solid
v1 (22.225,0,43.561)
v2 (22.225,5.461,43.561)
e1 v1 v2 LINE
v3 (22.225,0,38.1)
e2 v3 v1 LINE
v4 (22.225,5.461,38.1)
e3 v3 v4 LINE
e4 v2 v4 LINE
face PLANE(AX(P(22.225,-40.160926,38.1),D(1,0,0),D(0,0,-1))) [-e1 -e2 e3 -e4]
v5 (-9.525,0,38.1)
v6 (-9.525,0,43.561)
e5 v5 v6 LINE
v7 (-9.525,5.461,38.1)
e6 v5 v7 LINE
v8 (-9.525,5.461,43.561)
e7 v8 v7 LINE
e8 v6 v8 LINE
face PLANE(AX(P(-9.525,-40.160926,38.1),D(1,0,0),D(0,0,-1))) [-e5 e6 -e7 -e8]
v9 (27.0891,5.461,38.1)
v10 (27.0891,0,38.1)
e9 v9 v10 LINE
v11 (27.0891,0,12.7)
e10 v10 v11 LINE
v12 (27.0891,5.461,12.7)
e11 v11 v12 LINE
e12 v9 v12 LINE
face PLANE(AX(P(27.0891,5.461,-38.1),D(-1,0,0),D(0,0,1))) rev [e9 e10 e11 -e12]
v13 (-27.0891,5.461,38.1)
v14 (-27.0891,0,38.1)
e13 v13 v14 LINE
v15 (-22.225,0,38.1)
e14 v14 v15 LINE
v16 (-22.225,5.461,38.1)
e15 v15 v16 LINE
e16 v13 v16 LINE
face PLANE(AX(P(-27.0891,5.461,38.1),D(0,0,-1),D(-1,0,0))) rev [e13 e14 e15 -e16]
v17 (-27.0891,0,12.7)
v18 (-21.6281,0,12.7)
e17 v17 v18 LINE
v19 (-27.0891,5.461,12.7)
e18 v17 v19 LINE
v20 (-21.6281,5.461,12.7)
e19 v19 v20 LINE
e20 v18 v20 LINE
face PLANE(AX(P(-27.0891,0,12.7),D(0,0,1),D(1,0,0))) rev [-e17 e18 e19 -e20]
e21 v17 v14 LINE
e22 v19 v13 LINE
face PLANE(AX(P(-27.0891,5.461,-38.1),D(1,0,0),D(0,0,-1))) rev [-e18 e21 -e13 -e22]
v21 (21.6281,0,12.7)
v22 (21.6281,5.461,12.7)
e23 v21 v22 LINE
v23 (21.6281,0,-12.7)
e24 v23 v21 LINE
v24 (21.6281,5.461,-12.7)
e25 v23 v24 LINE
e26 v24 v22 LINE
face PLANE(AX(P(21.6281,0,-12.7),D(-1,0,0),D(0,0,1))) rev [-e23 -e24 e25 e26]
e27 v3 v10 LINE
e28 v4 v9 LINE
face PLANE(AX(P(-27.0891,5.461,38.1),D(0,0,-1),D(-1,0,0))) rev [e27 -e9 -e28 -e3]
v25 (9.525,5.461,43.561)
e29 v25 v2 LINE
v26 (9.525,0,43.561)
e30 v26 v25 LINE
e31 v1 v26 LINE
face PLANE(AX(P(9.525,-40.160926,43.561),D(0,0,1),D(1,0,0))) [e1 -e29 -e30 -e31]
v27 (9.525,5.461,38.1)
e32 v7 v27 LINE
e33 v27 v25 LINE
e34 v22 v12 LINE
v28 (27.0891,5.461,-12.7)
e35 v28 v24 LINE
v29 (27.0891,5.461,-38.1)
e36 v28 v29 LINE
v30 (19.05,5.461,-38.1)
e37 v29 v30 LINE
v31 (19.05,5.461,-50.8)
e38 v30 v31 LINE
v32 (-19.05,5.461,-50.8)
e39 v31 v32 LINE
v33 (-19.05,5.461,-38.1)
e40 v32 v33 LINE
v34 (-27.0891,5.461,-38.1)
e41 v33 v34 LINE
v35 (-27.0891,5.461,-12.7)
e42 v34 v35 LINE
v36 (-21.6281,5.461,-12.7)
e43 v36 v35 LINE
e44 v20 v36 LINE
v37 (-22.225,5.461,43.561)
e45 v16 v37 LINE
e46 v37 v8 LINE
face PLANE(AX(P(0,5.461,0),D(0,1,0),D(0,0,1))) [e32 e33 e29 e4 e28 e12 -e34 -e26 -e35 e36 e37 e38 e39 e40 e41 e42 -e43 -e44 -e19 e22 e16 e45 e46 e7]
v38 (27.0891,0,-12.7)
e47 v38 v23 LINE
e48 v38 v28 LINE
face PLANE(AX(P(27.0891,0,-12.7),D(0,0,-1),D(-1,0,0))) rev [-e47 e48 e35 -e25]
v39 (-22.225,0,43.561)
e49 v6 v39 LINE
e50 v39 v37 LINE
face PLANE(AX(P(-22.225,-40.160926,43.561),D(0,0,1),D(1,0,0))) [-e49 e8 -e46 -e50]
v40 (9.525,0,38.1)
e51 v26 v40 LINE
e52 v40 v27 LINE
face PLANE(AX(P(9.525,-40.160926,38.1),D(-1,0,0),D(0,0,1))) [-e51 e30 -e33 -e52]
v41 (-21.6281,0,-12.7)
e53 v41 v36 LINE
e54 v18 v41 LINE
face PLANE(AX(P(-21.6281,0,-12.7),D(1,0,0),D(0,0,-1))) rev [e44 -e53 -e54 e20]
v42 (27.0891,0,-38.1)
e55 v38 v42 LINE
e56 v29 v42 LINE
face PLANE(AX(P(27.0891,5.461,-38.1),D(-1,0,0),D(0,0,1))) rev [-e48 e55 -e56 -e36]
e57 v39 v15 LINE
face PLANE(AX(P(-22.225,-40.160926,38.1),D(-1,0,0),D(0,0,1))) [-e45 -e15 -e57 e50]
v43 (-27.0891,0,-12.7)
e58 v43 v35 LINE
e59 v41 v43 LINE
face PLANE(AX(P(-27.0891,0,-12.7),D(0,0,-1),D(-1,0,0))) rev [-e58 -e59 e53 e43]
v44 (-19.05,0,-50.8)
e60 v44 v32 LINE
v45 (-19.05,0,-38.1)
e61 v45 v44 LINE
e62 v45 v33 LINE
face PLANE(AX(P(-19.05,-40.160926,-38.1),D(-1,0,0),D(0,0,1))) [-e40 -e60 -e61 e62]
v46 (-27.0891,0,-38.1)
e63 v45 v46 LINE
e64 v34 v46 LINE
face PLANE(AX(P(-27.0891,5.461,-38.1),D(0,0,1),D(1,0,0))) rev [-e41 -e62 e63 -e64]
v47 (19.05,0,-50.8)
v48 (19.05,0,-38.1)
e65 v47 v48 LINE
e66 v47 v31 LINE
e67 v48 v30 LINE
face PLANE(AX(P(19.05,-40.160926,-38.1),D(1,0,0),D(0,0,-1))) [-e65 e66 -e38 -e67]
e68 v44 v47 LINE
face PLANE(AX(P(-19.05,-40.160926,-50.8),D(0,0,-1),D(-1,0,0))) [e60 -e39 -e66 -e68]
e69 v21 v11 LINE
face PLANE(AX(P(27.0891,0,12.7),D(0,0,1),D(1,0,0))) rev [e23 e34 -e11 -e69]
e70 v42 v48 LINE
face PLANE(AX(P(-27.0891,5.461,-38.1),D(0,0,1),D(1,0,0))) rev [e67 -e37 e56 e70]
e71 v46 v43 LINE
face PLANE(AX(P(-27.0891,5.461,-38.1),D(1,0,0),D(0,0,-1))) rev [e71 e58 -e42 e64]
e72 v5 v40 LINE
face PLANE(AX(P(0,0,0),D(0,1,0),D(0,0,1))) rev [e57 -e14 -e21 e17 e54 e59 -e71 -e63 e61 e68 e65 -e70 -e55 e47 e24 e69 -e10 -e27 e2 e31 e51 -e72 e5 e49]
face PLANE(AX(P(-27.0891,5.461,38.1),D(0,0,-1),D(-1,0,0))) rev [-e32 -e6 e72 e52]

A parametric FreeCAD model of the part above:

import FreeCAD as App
import Part
import Sketcher

V = App.Vector
Q = App.Units.Quantity


def add_polygon(sketch, points):
    """Adds a closed chain of lines whose ends are joined by coincident constraints."""
    first, n = sketch.GeometryCount, len(points)
    for a, b in zip(points, points[1:] + points[:1]):
        sketch.addGeometry(Part.LineSegment(App.Vector(*a, 0), App.Vector(*b, 0)), False)
    for i in range(n):
        sketch.addConstraint(Sketcher.Constraint("Coincident", first + i, 2, first + (i + 1) % n, 1))

doc = App.newDocument("Part")
body = doc.addObject("PartDesign::Body", "Body")

# Sketch on XZ plane
sketch1 = body.newObject("Sketcher::SketchObject", "Sketch")
sketch1.AttachmentSupport = (doc.getObject("XZ_Plane"), [""])
sketch1.MapMode = "FlatFace"
add_polygon(sketch1, [(-27, -38), (-27, 38), (27, 38), (27, -38)])  # lines 0-3
sketch1.addConstraint(Sketcher.Constraint("Vertical", 0))
sketch1.addConstraint(Sketcher.Constraint("Horizontal", 1))
sketch1.addConstraint(Sketcher.Constraint("Vertical", 2))
sketch1.addConstraint(Sketcher.Constraint("Horizontal", 3))
sketch1.addConstraint(Sketcher.Constraint("Symmetric", 0, 2, 2, 2, -1, 1))
sketch1.addConstraint(Sketcher.Constraint("DistanceY", 0, 1, 0, 2, Q("3 in")))
sketch1.addConstraint(Sketcher.Constraint("DistanceX", 1, 1, 1, 2, Q("2.133 in")))
pad1 = body.newObject("PartDesign::Pad", "Pad")
pad1.Profile = sketch1
pad1.Length = Q("0.215 in")
pad1.Reversed = True

# Sketch on XZ plane
sketch2 = body.newObject("Sketcher::SketchObject", "Sketch001")
sketch2.AttachmentSupport = (doc.getObject("XZ_Plane"), [""])
sketch2.MapMode = "FlatFace"
sketch2.AttachmentOffset = App.Placement(V(0, 0, -0.215 * 25.4), App.Rotation())
add_polygon(sketch2, [(-22, 38), (-22, 44), (-10, 44), (-10, 38)])  # lines 0-3
add_polygon(sketch2, [(10, 38), (10, 44), (22, 44), (22, 38)])  # lines 4-7
add_polygon(sketch2, [(-19, -51), (-19, -38), (19, -38), (19, -51)])  # lines 8-11
sketch2.addConstraint(Sketcher.Constraint("Vertical", 0))
sketch2.addConstraint(Sketcher.Constraint("Horizontal", 1))
sketch2.addConstraint(Sketcher.Constraint("Vertical", 2))
sketch2.addConstraint(Sketcher.Constraint("Horizontal", 3))
sketch2.addConstraint(Sketcher.Constraint("Vertical", 4))
sketch2.addConstraint(Sketcher.Constraint("Horizontal", 5))
sketch2.addConstraint(Sketcher.Constraint("Vertical", 6))
sketch2.addConstraint(Sketcher.Constraint("Horizontal", 7))
sketch2.addConstraint(Sketcher.Constraint("Vertical", 8))
sketch2.addConstraint(Sketcher.Constraint("Horizontal", 9))
sketch2.addConstraint(Sketcher.Constraint("Vertical", 10))
sketch2.addConstraint(Sketcher.Constraint("Horizontal", 11))
sketch2.addConstraint(Sketcher.Constraint("Symmetric", 1, 2, 4, 2, -2))
sketch2.addConstraint(Sketcher.Constraint("Symmetric", 3, 2, 6, 2, -2))
sketch2.addConstraint(Sketcher.Constraint("Equal", 7, 8))
sketch2.addConstraint(Sketcher.Constraint("DistanceX", 1, 1, 1, 2, Q("0.5 in")))
sketch2.addConstraint(Sketcher.Constraint("DistanceX", 9, 1, 9, 2, Q("1.5 in")))
sketch2.addConstraint(Sketcher.Constraint("DistanceY", 10, 2, -1, 1, Q("2 in")))
sketch2.addConstraint(Sketcher.Constraint("DistanceY", 8, 2, 3, 2, Q("3 in")))
sketch2.addConstraint(Sketcher.Constraint("DistanceY", 0, 1, 0, 2, Q("0.215 in")))
sketch2.addConstraint(Sketcher.Constraint("DistanceX", 8, 2, -1, 1, Q("0.75 in")))
sketch2.addConstraint(Sketcher.Constraint("DistanceX", 1, 2, 4, 2, Q("0.75 in")))
pad2 = body.newObject("PartDesign::Pad", "Pad001")
pad2.Profile = sketch2
pad2.Length = Q("0.215 in")

# Sketch on XZ plane
sketch3 = body.newObject("Sketcher::SketchObject", "Sketch002")
sketch3.AttachmentSupport = (doc.getObject("XZ_Plane"), [""])
sketch3.MapMode = "FlatFace"
sketch3.AttachmentOffset = App.Placement(V(0, 0, -0.215 * 25.4), App.Rotation())
add_polygon(sketch3, [(-27, -13), (-27, 13), (-22, 13), (-22, -13)])  # lines 0-3
add_polygon(sketch3, [(22, -13), (22, 13), (27, 13), (27, -13)])  # lines 4-7
sketch3.addConstraint(Sketcher.Constraint("Vertical", 0))
sketch3.addConstraint(Sketcher.Constraint("Horizontal", 1))
sketch3.addConstraint(Sketcher.Constraint("Vertical", 2))
sketch3.addConstraint(Sketcher.Constraint("Horizontal", 3))
sketch3.addConstraint(Sketcher.Constraint("Vertical", 4))
sketch3.addConstraint(Sketcher.Constraint("Horizontal", 5))
sketch3.addConstraint(Sketcher.Constraint("Vertical", 6))
sketch3.addConstraint(Sketcher.Constraint("Horizontal", 7))
sketch3.addConstraint(Sketcher.Constraint("Symmetric", 2, 2, 4, 2, -1, 1))
sketch3.addConstraint(Sketcher.Constraint("Symmetric", 0, 2, 6, 2, -1, 1))
sketch3.addConstraint(Sketcher.Constraint("Horizontal", 1, 2, 4, 2))
sketch3.addConstraint(Sketcher.Constraint("DistanceY", 0, 1, 0, 2, Q("1 in")))
sketch3.addConstraint(Sketcher.Constraint("DistanceX", 1, 1, 1, 2, Q("0.215 in")))
sketch3.addConstraint(Sketcher.Constraint("DistanceX", 1, 2, 4, 2, Q("1.703 in")))
pocket1 = body.newObject("PartDesign::Pocket", "Pocket")
pocket1.Profile = sketch3
pocket1.Type = "ThroughAll"
pocket1.Reversed = True

doc.recompute()
